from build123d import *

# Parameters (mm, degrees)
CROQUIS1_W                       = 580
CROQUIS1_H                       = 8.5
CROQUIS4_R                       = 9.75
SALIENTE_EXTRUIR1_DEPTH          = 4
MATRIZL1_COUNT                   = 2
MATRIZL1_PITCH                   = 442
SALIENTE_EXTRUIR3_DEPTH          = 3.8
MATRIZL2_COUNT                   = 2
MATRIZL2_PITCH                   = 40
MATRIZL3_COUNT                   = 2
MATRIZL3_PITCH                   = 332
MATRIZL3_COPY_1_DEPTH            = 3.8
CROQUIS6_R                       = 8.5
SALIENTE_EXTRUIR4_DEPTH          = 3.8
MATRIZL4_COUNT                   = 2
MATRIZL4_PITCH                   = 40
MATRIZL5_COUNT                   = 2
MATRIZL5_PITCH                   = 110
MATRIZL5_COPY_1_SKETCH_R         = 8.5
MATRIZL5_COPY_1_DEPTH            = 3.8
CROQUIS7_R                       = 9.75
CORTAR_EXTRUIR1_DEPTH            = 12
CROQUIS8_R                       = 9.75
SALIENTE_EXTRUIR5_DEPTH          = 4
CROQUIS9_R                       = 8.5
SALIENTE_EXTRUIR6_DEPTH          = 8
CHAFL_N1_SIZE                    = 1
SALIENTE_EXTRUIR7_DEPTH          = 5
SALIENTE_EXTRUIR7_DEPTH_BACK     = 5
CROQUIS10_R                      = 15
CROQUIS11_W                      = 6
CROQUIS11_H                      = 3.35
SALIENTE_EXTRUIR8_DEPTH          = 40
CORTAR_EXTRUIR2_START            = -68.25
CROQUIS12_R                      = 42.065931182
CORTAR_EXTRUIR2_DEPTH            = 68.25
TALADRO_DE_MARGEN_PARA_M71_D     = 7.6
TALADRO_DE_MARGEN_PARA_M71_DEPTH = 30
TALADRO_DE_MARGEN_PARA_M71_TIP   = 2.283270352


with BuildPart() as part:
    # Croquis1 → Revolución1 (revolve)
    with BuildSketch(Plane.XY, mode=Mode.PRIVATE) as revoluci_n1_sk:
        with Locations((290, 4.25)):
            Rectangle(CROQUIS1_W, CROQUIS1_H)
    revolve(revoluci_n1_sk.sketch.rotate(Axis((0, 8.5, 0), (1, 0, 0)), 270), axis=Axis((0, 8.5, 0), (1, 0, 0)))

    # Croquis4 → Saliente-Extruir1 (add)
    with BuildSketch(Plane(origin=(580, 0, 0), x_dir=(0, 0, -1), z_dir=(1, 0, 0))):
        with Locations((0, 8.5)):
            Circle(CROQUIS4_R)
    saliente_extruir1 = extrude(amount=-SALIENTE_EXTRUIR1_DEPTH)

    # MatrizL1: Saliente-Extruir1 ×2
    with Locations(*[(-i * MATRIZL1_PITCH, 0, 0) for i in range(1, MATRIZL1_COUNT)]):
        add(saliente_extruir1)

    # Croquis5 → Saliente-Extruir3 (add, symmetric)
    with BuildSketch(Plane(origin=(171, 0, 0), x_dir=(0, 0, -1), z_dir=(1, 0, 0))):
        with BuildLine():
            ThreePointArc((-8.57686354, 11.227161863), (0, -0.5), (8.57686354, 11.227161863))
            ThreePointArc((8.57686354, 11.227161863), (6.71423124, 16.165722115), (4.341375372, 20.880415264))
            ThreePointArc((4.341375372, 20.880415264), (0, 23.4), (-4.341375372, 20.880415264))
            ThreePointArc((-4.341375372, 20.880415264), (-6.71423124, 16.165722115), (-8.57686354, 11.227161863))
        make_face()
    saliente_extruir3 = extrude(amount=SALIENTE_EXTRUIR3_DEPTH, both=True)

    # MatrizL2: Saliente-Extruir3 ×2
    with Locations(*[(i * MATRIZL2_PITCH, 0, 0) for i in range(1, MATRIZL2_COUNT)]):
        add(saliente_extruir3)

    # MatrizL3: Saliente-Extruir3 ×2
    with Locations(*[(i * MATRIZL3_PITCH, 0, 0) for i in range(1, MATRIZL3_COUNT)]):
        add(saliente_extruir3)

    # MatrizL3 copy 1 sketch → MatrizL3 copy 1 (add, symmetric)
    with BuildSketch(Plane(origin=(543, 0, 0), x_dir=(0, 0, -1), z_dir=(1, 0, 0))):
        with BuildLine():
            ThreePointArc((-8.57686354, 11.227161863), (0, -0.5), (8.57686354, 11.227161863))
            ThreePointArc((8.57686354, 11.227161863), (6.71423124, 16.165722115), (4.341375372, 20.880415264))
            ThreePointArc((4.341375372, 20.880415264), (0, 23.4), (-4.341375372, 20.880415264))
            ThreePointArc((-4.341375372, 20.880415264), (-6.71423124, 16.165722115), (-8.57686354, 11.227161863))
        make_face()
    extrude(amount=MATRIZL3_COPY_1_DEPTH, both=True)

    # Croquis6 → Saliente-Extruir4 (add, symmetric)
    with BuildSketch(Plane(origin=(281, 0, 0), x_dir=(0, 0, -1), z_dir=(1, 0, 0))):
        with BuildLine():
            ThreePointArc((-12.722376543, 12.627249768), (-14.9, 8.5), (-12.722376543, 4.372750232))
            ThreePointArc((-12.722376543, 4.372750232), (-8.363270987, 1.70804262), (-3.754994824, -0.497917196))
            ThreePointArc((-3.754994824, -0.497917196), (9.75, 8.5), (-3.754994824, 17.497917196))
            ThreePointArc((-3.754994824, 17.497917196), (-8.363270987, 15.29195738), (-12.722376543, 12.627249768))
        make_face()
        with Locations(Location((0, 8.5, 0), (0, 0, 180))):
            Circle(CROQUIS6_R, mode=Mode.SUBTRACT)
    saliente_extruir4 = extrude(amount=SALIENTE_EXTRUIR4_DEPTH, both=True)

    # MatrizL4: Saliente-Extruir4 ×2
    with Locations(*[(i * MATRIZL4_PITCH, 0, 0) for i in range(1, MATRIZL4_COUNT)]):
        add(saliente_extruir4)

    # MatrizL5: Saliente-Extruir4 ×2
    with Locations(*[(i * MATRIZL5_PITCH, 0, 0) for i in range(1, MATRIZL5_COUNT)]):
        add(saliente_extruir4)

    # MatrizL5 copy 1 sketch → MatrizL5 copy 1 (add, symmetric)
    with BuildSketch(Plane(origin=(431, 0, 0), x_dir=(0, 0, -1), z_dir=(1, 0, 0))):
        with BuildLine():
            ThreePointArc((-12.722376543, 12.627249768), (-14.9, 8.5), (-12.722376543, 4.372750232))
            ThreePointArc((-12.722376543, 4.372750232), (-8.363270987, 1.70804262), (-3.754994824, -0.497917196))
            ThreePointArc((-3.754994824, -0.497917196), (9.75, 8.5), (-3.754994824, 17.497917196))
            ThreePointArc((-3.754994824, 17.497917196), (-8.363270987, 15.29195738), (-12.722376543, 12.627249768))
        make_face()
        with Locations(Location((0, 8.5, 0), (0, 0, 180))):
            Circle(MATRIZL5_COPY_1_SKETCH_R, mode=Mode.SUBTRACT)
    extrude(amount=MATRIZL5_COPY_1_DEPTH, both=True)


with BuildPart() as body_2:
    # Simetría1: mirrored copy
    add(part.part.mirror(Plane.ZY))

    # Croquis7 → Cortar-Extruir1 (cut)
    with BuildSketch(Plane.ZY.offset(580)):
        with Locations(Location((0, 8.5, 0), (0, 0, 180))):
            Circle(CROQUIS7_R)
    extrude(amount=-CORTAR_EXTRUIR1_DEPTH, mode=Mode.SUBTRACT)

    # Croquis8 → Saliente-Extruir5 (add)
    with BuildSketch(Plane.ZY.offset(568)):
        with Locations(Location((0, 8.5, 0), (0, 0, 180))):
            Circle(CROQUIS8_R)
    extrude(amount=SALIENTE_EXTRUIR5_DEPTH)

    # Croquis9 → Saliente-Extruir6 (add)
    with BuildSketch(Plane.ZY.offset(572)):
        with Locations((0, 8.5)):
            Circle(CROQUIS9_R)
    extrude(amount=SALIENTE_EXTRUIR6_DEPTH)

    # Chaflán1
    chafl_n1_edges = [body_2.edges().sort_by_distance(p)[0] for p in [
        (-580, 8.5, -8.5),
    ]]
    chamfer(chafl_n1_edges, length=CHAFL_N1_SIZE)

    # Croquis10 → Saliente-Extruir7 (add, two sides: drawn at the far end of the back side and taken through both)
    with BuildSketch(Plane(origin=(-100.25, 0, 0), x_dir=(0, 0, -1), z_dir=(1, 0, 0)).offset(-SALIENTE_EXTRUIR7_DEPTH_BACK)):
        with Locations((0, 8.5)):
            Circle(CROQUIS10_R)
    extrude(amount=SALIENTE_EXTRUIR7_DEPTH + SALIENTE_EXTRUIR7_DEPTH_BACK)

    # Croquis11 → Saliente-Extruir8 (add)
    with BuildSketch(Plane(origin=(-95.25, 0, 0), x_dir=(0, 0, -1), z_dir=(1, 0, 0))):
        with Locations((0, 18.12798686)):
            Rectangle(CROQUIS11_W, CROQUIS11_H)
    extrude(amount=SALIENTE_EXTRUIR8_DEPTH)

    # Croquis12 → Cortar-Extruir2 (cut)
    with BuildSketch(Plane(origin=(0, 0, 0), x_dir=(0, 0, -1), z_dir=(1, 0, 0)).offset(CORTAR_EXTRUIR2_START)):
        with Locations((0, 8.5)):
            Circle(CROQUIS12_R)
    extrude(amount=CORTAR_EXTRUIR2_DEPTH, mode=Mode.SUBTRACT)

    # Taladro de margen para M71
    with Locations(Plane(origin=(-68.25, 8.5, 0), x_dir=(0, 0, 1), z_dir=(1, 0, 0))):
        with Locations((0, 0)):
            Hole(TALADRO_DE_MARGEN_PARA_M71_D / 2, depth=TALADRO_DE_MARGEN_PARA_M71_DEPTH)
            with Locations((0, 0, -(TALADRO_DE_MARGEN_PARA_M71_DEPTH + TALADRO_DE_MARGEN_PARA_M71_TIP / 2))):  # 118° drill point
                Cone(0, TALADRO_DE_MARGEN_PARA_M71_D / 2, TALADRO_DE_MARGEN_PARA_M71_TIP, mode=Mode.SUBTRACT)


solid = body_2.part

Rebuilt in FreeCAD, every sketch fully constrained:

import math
import FreeCAD as App
import Part
import Sketcher


def edges_at(feature, points):
    """Names of the edges that pass closest to the given points."""
    edges = feature.Shape.Edges
    near = lambda p: min(range(len(edges)), key=lambda i: edges[i].distToShape(Part.Vertex(*p))[0])
    return sorted({f"Edge{near(p) + 1}" for p in points})

doc = App.newDocument("Part")
body = doc.addObject("PartDesign::Body", "Body")

# Sketch on XY plane
sketch1 = body.newObject("Sketcher::SketchObject", "Sketch")
sketch1.AttachmentSupport = (doc.getObject("XY_Plane"), [""])
sketch1.MapMode = "FlatFace"
sketch1.addGeometry([
    Part.LineSegment(App.Vector(0, 8, 0), App.Vector(0, 0, 0)),
    Part.LineSegment(App.Vector(0, 0, 0), App.Vector(580, 0, 0)),
    Part.LineSegment(App.Vector(580, 0, 0), App.Vector(580, 8, 0)),
    Part.LineSegment(App.Vector(580, 8, 0), App.Vector(0, 8, 0)),
], False)
sketch1.addGeometry(Part.LineSegment(App.Vector(0, 8, 0), App.Vector(580, 8, 0)), True)  # axis
sketch1.addConstraint([
    Sketcher.Constraint("Coincident", 0, 2, 1, 1),
    Sketcher.Constraint("Coincident", 1, 2, 2, 1),
    Sketcher.Constraint("Coincident", 2, 2, 3, 1),
    Sketcher.Constraint("Coincident", 3, 2, 0, 1),
    Sketcher.Constraint("Vertical", 0),
    Sketcher.Constraint("Horizontal", 1),
    Sketcher.Constraint("Vertical", 2),
    Sketcher.Constraint("Horizontal", 3),
    Sketcher.Constraint("Horizontal", 4),
    Sketcher.Constraint("Coincident", 0, 2, -1, 1),
    Sketcher.Constraint("Coincident", 4, 1, 3, 2),
    Sketcher.Constraint("Vertical", 1, 2, 4, 2),
    Sketcher.Constraint("DistanceX", 1, 1, 1, 2, 580.0),
    Sketcher.Constraint("DistanceY", 0, 2, 0, 1, 8.5),
])
revolution = body.newObject("PartDesign::Revolution", "Revolution")
revolution.Profile = sketch1
revolution.ReferenceAxis = (sketch1, ["Axis0"])
revolution.Angle = 360

# Sketch on YZ plane
sketch2 = body.newObject("Sketcher::SketchObject", "Sketch001")
sketch2.AttachmentSupport = (doc.getObject("YZ_Plane"), [""])
sketch2.MapMode = "FlatFace"
sketch2.AttachmentOffset = App.Placement(App.Vector(0, 0, 580), App.Rotation())
sketch2.addGeometry(Part.Circle(App.Vector(8, 0, 0), App.Vector(0, 0, 1), 10), False)
sketch2.addConstraint([
    Sketcher.Constraint("PointOnObject", 0, 3, -1),
    Sketcher.Constraint("Diameter", 0, 19.5),
    Sketcher.Constraint("DistanceX", -1, 1, 0, 3, 8.5),
])
pad1 = body.newObject("PartDesign::Pad", "Pad")
pad1.Profile = sketch2
pad1.Length = 4
pad1.Reversed = True
doc.recompute()

linearpattern = body.newObject("PartDesign::LinearPattern", "LinearPattern")
linearpattern.Originals = [pad1]
linearpattern.Direction = (doc.getObject("X_Axis"), [""])
linearpattern.Mode = "offset"
linearpattern.Offset = 442
linearpattern.Occurrences = 2
linearpattern.Reversed = True
body.Tip = linearpattern

# Sketch on YZ plane
sketch3 = body.newObject("Sketcher::SketchObject", "Sketch002")
sketch3.AttachmentSupport = (doc.getObject("YZ_Plane"), [""])
sketch3.MapMode = "FlatFace"
sketch3.AttachmentOffset = App.Placement(App.Vector(0, 0, 171), App.Rotation())
sketch3.addGeometry([
    Part.ArcOfCircle(Part.Circle(App.Vector(8, 0, 0), App.Vector(0, 0, 1), 9), math.radians(72), math.radians(288)),
    Part.ArcOfCircle(Part.Circle(App.Vector(-4, 39, 0), App.Vector(0, 0, 1), 50), math.radians(-72.36), math.radians(-60.26)),
    Part.ArcOfCircle(Part.Circle(App.Vector(18, 0, 0), App.Vector(0, 0, 1), 5), math.radians(-60), math.radians(60)),
    Part.ArcOfCircle(Part.Circle(App.Vector(-4, -39, 0), App.Vector(0, 0, 1), 50), math.radians(60.26), math.radians(72.36)),
], False)
sketch3.addConstraint([
    Sketcher.Constraint("Tangent", 0, 2, 1, 1),
    Sketcher.Constraint("Tangent", 1, 2, 2, 1),
    Sketcher.Constraint("Tangent", 2, 2, 3, 1),
    Sketcher.Constraint("Tangent", 3, 2, 0, 1),
    Sketcher.Constraint("Equal", 1, 3),
    Sketcher.Constraint("Symmetric", 1, 3, 3, 3, -1),
    Sketcher.Constraint("Radius", 0, 9.0),
    Sketcher.Constraint("Radius", 1, 50.0),
    Sketcher.Constraint("Radius", 2, 5.0),
    Sketcher.Constraint("DistanceX", -1, 1, 0, 3, 8.5),
    Sketcher.Constraint("DistanceX", -1, 1, 2, 3, 18.4),
])
pad2 = body.newObject("PartDesign::Pad", "Pad001")
pad2.Profile = sketch3
pad2.Length = 7.6
pad2.Midplane = True
doc.recompute()

linearpattern2 = body.newObject("PartDesign::LinearPattern", "LinearPattern001")
linearpattern2.Originals = [pad2]
linearpattern2.Direction = (doc.getObject("X_Axis"), [""])
linearpattern2.Mode = "offset"
linearpattern2.Offset = 40
linearpattern2.Occurrences = 2
body.Tip = linearpattern2
doc.recompute()

linearpattern3 = body.newObject("PartDesign::LinearPattern", "LinearPattern002")
linearpattern3.Originals = [pad2]
linearpattern3.Direction = (doc.getObject("X_Axis"), [""])
linearpattern3.Mode = "offset"
linearpattern3.Offset = 332
linearpattern3.Occurrences = 2
body.Tip = linearpattern3

# Sketch on YZ plane
sketch4 = body.newObject("Sketcher::SketchObject", "Sketch003")
sketch4.AttachmentSupport = (doc.getObject("YZ_Plane"), [""])
sketch4.MapMode = "FlatFace"
sketch4.AttachmentOffset = App.Placement(App.Vector(0, 0, 543), App.Rotation())
sketch4.addGeometry([
    Part.ArcOfCircle(Part.Circle(App.Vector(8, 0, 0), App.Vector(0, 0, 1), 9), math.radians(72), math.radians(288)),
    Part.ArcOfCircle(Part.Circle(App.Vector(-4, 39, 0), App.Vector(0, 0, 1), 50), math.radians(-72.36), math.radians(-60.26)),
    Part.ArcOfCircle(Part.Circle(App.Vector(18, 0, 0), App.Vector(0, 0, 1), 5), math.radians(-60), math.radians(60)),
    Part.ArcOfCircle(Part.Circle(App.Vector(-4, -39, 0), App.Vector(0, 0, 1), 50), math.radians(60.26), math.radians(72.36)),
], False)
sketch4.addConstraint([
    Sketcher.Constraint("Tangent", 0, 2, 1, 1),
    Sketcher.Constraint("Tangent", 1, 2, 2, 1),
    Sketcher.Constraint("Tangent", 2, 2, 3, 1),
    Sketcher.Constraint("Tangent", 3, 2, 0, 1),
    Sketcher.Constraint("Equal", 1, 3),
    Sketcher.Constraint("Symmetric", 1, 3, 3, 3, -1),
    Sketcher.Constraint("Radius", 0, 9.0),
    Sketcher.Constraint("Radius", 1, 50.0),
    Sketcher.Constraint("Radius", 2, 5.0),
    Sketcher.Constraint("DistanceX", -1, 1, 0, 3, 8.5),
    Sketcher.Constraint("DistanceX", -1, 1, 2, 3, 18.4),
])
pad3 = body.newObject("PartDesign::Pad", "Pad002")
pad3.Profile = sketch4
pad3.Length = 7.6
pad3.Midplane = True

# Sketch on YZ plane
sketch5 = body.newObject("Sketcher::SketchObject", "Sketch004")
sketch5.AttachmentSupport = (doc.getObject("YZ_Plane"), [""])
sketch5.MapMode = "FlatFace"
sketch5.AttachmentOffset = App.Placement(App.Vector(0, 0, 281), App.Rotation())
sketch5.addGeometry([
    Part.ArcOfCircle(Part.Circle(App.Vector(8, 10, 0), App.Vector(0, 0, 1), 5), math.radians(34), math.radians(146)),  # 0
    Part.ArcOfCircle(Part.Circle(App.Vector(46, -16, 0), App.Vector(0, 0, 1), 50), math.radians(145.63), math.radians(157.35)),  # 1
    Part.ArcOfCircle(Part.Circle(App.Vector(8, 0, 0), App.Vector(0, 0, 1), 10), math.radians(157), math.radians(383)),  # 2
    Part.ArcOfCircle(Part.Circle(App.Vector(-29, -16, 0), App.Vector(0, 0, 1), 50), math.radians(22.65), math.radians(34.37)),  # 3
    Part.Circle(App.Vector(8, 0, 0), App.Vector(0, 0, 1), 8),  # 4
], False)
sketch5.addConstraint([
    Sketcher.Constraint("Tangent", 0, 2, 1, 1),
    Sketcher.Constraint("Tangent", 1, 2, 2, 1),
    Sketcher.Constraint("Tangent", 2, 2, 3, 1),
    Sketcher.Constraint("Tangent", 3, 2, 0, 1),
    Sketcher.Constraint("Coincident", 4, 3, 2, 3),
    Sketcher.Constraint("Equal", 1, 3),
    Sketcher.Constraint("PointOnObject", 2, 3, -1),
    Sketcher.Constraint("Horizontal", 1, 3, 3, 3),
    Sketcher.Constraint("Diameter", 4, 17.0),
    Sketcher.Constraint("Radius", 0, 5.0),
    Sketcher.Constraint("Radius", 1, 50.0),
    Sketcher.Constraint("Radius", 2, 9.75),
    Sketcher.Constraint("DistanceX", -1, 1, 0, 3, 8.5),
    Sketcher.Constraint("DistanceY", -1, 1, 0, 3, 9.9),
])
pad4 = body.newObject("PartDesign::Pad", "Pad003")
pad4.Profile = sketch5
pad4.Length = 7.6
pad4.Midplane = True
doc.recompute()

linearpattern4 = body.newObject("PartDesign::LinearPattern", "LinearPattern003")
linearpattern4.Originals = [pad4]
linearpattern4.Direction = (doc.getObject("X_Axis"), [""])
linearpattern4.Mode = "offset"
linearpattern4.Offset = 40
linearpattern4.Occurrences = 2
body.Tip = linearpattern4
doc.recompute()

linearpattern5 = body.newObject("PartDesign::LinearPattern", "LinearPattern004")
linearpattern5.Originals = [pad4]
linearpattern5.Direction = (doc.getObject("X_Axis"), [""])
linearpattern5.Mode = "offset"
linearpattern5.Offset = 110
linearpattern5.Occurrences = 2
body.Tip = linearpattern5

# Sketch on YZ plane
sketch6 = body.newObject("Sketcher::SketchObject", "Sketch005")
sketch6.AttachmentSupport = (doc.getObject("YZ_Plane"), [""])
sketch6.MapMode = "FlatFace"
sketch6.AttachmentOffset = App.Placement(App.Vector(0, 0, 431), App.Rotation())
sketch6.addGeometry([
    Part.ArcOfCircle(Part.Circle(App.Vector(8, 10, 0), App.Vector(0, 0, 1), 5), math.radians(34), math.radians(146)),  # 0
    Part.ArcOfCircle(Part.Circle(App.Vector(46, -16, 0), App.Vector(0, 0, 1), 50), math.radians(145.63), math.radians(157.35)),  # 1
    Part.ArcOfCircle(Part.Circle(App.Vector(8, 0, 0), App.Vector(0, 0, 1), 10), math.radians(157), math.radians(383)),  # 2
    Part.ArcOfCircle(Part.Circle(App.Vector(-29, -16, 0), App.Vector(0, 0, 1), 50), math.radians(22.65), math.radians(34.37)),  # 3
    Part.Circle(App.Vector(8, 0, 0), App.Vector(0, 0, 1), 8),  # 4
], False)
sketch6.addConstraint([
    Sketcher.Constraint("Tangent", 0, 2, 1, 1),
    Sketcher.Constraint("Tangent", 1, 2, 2, 1),
    Sketcher.Constraint("Tangent", 2, 2, 3, 1),
    Sketcher.Constraint("Tangent", 3, 2, 0, 1),
    Sketcher.Constraint("Coincident", 4, 3, 2, 3),
    Sketcher.Constraint("Equal", 1, 3),
    Sketcher.Constraint("PointOnObject", 2, 3, -1),
    Sketcher.Constraint("Horizontal", 1, 3, 3, 3),
    Sketcher.Constraint("Diameter", 4, 17.0),
    Sketcher.Constraint("Radius", 0, 5.0),
    Sketcher.Constraint("Radius", 1, 50.0),
    Sketcher.Constraint("Radius", 2, 9.75),
    Sketcher.Constraint("DistanceX", -1, 1, 0, 3, 8.5),
    Sketcher.Constraint("DistanceY", -1, 1, 0, 3, 9.9),
])
pad5 = body.newObject("PartDesign::Pad", "Pad004")
pad5.Profile = sketch6
pad5.Length = 7.6
pad5.Midplane = True
body2 = doc.addObject("PartDesign::Body", "Body001")
doc.recompute()

mirroring = doc.addObject("Part::Mirroring", "Mirroring")
mirroring.Source = body
mirroring.Base = App.Vector(0, 0, 0)
mirroring.Normal = App.Vector(-1, 0, 0)
body2.BaseFeature = mirroring
doc.recompute()

# Sketch on YZ plane
sketch7 = body2.newObject("Sketcher::SketchObject", "Sketch006")
sketch7.AttachmentSupport = (doc.getObject("YZ_Plane001"), [""])
sketch7.MapMode = "FlatFace"
sketch7.AttachmentOffset = App.Placement(App.Vector(0, 0, -580), App.Rotation())
sketch7.addGeometry(Part.Circle(App.Vector(8, 0, 0), App.Vector(0, 0, 1), 10), False)
sketch7.addConstraint([
    Sketcher.Constraint("PointOnObject", 0, 3, -1),
    Sketcher.Constraint("Diameter", 0, 19.5),
    Sketcher.Constraint("DistanceX", -1, 1, 0, 3, 8.5),
])
pocket1 = body2.newObject("PartDesign::Pocket", "Pocket")
pocket1.Profile = sketch7
pocket1.Length = 12
pocket1.Reversed = True

# Sketch on YZ plane
sketch8 = body2.newObject("Sketcher::SketchObject", "Sketch007")
sketch8.AttachmentSupport = (doc.getObject("YZ_Plane001"), [""])
sketch8.MapMode = "FlatFace"
sketch8.AttachmentOffset = App.Placement(App.Vector(0, 0, -568), App.Rotation())
sketch8.addGeometry(Part.Circle(App.Vector(8, 0, 0), App.Vector(0, 0, 1), 10), False)
sketch8.addConstraint([
    Sketcher.Constraint("PointOnObject", 0, 3, -1),
    Sketcher.Constraint("Diameter", 0, 19.5),
    Sketcher.Constraint("DistanceX", -1, 1, 0, 3, 8.5),
])
pad6 = body2.newObject("PartDesign::Pad", "Pad005")
pad6.Profile = sketch8
pad6.Length = 4
pad6.Reversed = True

# Sketch on YZ plane
sketch9 = body2.newObject("Sketcher::SketchObject", "Sketch008")
sketch9.AttachmentSupport = (doc.getObject("YZ_Plane001"), [""])
sketch9.MapMode = "FlatFace"
sketch9.AttachmentOffset = App.Placement(App.Vector(0, 0, -572), App.Rotation())
sketch9.addGeometry(Part.Circle(App.Vector(8, 0, 0), App.Vector(0, 0, 1), 8), False)
sketch9.addConstraint([
    Sketcher.Constraint("PointOnObject", 0, 3, -1),
    Sketcher.Constraint("Diameter", 0, 17.0),
    Sketcher.Constraint("DistanceX", -1, 1, 0, 3, 8.5),
])
pad7 = body2.newObject("PartDesign::Pad", "Pad006")
pad7.Profile = sketch9
pad7.Length = 8
pad7.Reversed = True
doc.recompute()

chamfer = body2.newObject("PartDesign::Chamfer", "Chamfer")
chamfer.Base = (pad7, edges_at(pad7, [(-580, 8.5, -8.5)]))
chamfer.Size = 1

# Sketch on YZ plane
sketch10 = body2.newObject("Sketcher::SketchObject", "Sketch009")
sketch10.AttachmentSupport = (doc.getObject("YZ_Plane001"), [""])
sketch10.MapMode = "FlatFace"
sketch10.AttachmentOffset = App.Placement(App.Vector(0, 0, -100.25), App.Rotation())
sketch10.addGeometry(Part.Circle(App.Vector(8, 0, 0), App.Vector(0, 0, 1), 15), False)
sketch10.addConstraint([
    Sketcher.Constraint("PointOnObject", 0, 3, -1),
    Sketcher.Constraint("Diameter", 0, 30.0),
    Sketcher.Constraint("DistanceX", -1, 1, 0, 3, 8.5),
])
pad8 = body2.newObject("PartDesign::Pad", "Pad007")
pad8.Profile = sketch10
pad8.Type = "TwoLengths"
pad8.Length = 5
pad8.Length2 = 5

# Sketch on YZ plane
sketch11 = body2.newObject("Sketcher::SketchObject", "Sketch010")
sketch11.AttachmentSupport = (doc.getObject("YZ_Plane001"), [""])
sketch11.MapMode = "FlatFace"
sketch11.AttachmentOffset = App.Placement(App.Vector(0, 0, -95.25), App.Rotation())
sketch11.addGeometry([
    Part.LineSegment(App.Vector(19.8, 3, 0), App.Vector(16.5, 3, 0)),
    Part.LineSegment(App.Vector(16.5, 3, 0), App.Vector(16.5, -3, 0)),
    Part.LineSegment(App.Vector(16.5, -3, 0), App.Vector(19.8, -3, 0)),
    Part.LineSegment(App.Vector(19.8, -3, 0), App.Vector(19.8, 3, 0)),
], False)
sketch11.addConstraint([
    Sketcher.Constraint("Coincident", 0, 2, 1, 1),
    Sketcher.Constraint("Coincident", 1, 2, 2, 1),
    Sketcher.Constraint("Coincident", 2, 2, 3, 1),
    Sketcher.Constraint("Coincident", 3, 2, 0, 1),
    Sketcher.Constraint("Horizontal", 0),
    Sketcher.Constraint("Vertical", 1),
    Sketcher.Constraint("Horizontal", 2),
    Sketcher.Constraint("Vertical", 3),
    Sketcher.Constraint("DistanceY", 1, 2, 1, 1, 6.0),
    Sketcher.Constraint("DistanceY", -1, 1, 0, 2, 3.0),
    Sketcher.Constraint("DistanceX", 0, 2, 0, 1, 3.35),
    Sketcher.Constraint("DistanceX", -1, 1, 0, 2, 16.452987),
])
pad9 = body2.newObject("PartDesign::Pad", "Pad008")
pad9.Profile = sketch11
pad9.Length = 40

# Sketch on YZ plane
sketch12 = body2.newObject("Sketcher::SketchObject", "Sketch011")
sketch12.AttachmentSupport = (doc.getObject("YZ_Plane001"), [""])
sketch12.MapMode = "FlatFace"
sketch12.AttachmentOffset = App.Placement(App.Vector(0, 0, -68.25), App.Rotation())
sketch12.addGeometry(Part.Circle(App.Vector(8, 0, 0), App.Vector(0, 0, 1), 42), False)
sketch12.addConstraint([
    Sketcher.Constraint("PointOnObject", 0, 3, -1),
    Sketcher.Constraint("DistanceX", -1, 1, 0, 3, 8.5),
    Sketcher.Constraint("Diameter", 0, 84.131862),
])
pocket2 = body2.newObject("PartDesign::Pocket", "Pocket001")
pocket2.Profile = sketch12
pocket2.Length = 68.25
pocket2.Reversed = True

# Sketch on YZ plane
sketch13 = body2.newObject("Sketcher::SketchObject", "Sketch012")
sketch13.AttachmentSupport = (doc.getObject("YZ_Plane001"), [""])
sketch13.MapMode = "FlatFace"
sketch13.AttachmentOffset = App.Placement(App.Vector(0, 0, -68.25), App.Rotation())
sketch13.addGeometry(Part.Circle(App.Vector(8.5, 0, 0), App.Vector(0, 0, 1), 3.8), False)
sketch13.addConstraint([
    Sketcher.Constraint("PointOnObject", 0, 3, -1),
    Sketcher.Constraint("Diameter", 0, 7.6),
    Sketcher.Constraint("DistanceX", -1, 1, 0, 3, 8.5),
])
doc.recompute()
hole = body2.newObject("PartDesign::Hole", "Hole")
hole.Profile = sketch13
hole.ThreadType = "None"
hole.Diameter = 7.6
hole.DepthType = "Dimension"
hole.Depth = 30
hole.DrillPoint = "Angled"
hole.DrillPointAngle = 118
body.Visibility = False
mirroring.Visibility = False

doc.recompute()
